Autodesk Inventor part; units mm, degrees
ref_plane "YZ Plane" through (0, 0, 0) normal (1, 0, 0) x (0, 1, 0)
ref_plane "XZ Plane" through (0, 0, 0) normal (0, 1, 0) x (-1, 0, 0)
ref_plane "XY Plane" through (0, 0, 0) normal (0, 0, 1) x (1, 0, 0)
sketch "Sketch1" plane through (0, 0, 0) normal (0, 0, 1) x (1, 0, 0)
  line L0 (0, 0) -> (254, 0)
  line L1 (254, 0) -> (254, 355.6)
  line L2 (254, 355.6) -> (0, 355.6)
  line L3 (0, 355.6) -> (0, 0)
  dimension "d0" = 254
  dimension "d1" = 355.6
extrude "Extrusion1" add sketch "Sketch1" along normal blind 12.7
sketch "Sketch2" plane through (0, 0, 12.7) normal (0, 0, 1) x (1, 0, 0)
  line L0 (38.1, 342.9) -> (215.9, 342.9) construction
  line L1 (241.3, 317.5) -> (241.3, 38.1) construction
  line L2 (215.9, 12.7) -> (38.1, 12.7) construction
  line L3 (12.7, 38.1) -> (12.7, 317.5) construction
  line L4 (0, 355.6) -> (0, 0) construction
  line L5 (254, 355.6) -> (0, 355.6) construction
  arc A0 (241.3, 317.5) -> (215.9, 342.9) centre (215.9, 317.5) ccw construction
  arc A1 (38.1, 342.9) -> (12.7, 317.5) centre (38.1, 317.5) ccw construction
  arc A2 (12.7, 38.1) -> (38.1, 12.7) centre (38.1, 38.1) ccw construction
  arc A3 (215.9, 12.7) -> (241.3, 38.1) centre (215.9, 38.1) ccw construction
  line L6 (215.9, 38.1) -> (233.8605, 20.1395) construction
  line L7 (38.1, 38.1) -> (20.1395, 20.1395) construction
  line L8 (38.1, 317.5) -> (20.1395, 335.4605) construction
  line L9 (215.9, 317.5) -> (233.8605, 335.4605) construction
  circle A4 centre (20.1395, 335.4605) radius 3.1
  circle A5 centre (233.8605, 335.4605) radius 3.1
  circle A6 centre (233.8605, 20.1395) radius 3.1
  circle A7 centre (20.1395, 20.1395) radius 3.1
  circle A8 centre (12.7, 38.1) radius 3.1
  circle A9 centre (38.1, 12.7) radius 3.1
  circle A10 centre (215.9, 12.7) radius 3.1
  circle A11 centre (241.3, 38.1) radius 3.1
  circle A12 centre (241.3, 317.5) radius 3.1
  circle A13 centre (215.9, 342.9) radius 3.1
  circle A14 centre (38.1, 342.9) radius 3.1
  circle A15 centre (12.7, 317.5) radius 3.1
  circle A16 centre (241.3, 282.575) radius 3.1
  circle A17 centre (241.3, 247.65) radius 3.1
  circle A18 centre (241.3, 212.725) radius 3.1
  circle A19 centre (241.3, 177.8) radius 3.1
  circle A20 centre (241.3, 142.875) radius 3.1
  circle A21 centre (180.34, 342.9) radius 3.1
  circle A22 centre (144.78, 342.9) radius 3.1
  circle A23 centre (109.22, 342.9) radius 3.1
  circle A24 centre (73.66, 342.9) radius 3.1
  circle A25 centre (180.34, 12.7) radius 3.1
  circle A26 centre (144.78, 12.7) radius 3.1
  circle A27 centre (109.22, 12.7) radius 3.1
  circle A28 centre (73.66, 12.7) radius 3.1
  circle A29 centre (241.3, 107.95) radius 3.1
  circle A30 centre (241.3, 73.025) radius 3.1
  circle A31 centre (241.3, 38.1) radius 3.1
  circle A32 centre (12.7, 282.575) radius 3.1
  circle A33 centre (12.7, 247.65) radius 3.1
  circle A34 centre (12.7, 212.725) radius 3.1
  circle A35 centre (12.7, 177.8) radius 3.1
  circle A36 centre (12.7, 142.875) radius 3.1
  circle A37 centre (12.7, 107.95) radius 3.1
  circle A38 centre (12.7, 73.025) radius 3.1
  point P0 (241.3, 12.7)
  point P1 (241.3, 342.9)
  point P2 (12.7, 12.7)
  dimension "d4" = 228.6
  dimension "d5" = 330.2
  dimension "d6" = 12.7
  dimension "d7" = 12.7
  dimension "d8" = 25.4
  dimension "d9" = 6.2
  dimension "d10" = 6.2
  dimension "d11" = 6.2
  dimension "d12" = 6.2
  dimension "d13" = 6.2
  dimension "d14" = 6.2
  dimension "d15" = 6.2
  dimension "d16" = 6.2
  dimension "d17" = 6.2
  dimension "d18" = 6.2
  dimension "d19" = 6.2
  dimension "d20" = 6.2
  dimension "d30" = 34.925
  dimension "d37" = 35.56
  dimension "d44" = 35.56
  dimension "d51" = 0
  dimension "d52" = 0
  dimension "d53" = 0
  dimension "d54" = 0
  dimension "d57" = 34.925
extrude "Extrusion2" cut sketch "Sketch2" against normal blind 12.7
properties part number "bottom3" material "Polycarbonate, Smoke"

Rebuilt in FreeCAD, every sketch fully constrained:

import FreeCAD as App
import Part
import Sketcher
Q = App.Units.Quantity


def add_polygon(sketch, points):
    """Adds a closed chain of lines whose ends are joined by coincident constraints."""
    first, n = sketch.GeometryCount, len(points)
    for a, b in zip(points, points[1:] + points[:1]):
        sketch.addGeometry(Part.LineSegment(App.Vector(*a, 0), App.Vector(*b, 0)), False)
    for i in range(n):
        sketch.addConstraint(Sketcher.Constraint("Coincident", first + i, 2, first + (i + 1) % n, 1))

doc = App.newDocument("Part")
body = doc.addObject("PartDesign::Body", "Body")

sketch1 = body.newObject("Sketcher::SketchObject", "Sketch")
sketch1.AttachmentSupport = (doc.getObject("XY_Plane"), [""])
sketch1.MapMode = "FlatFace"
add_polygon(sketch1, [(0, 355.6), (0, 0), (254, 0), (254, 355.6)])
sketch1.addConstraint(Sketcher.Constraint("Vertical", 0))
sketch1.addConstraint(Sketcher.Constraint("Horizontal", 1))
sketch1.addConstraint(Sketcher.Constraint("Vertical", 2))
sketch1.addConstraint(Sketcher.Constraint("Horizontal", 3))
sketch1.addConstraint(Sketcher.Constraint("Coincident", 0, 2, -1, 1))
sketch1.addConstraint(Sketcher.Constraint("DistanceX", 1, 1, 1, 2, Q("10 in")))
sketch1.addConstraint(Sketcher.Constraint("DistanceY", 0, 2, 0, 1, Q("14 in")))
pad1 = body.newObject("PartDesign::Pad", "Pad")
pad1.Profile = sketch1
pad1.Length = Q("0.5 in")

sketch2 = body.newObject("Sketcher::SketchObject", "Sketch001")
sketch2.AttachmentSupport = (doc.getObject("XY_Plane"), [""])
sketch2.MapMode = "FlatFace"
sketch2.AttachmentOffset = App.Placement(App.Vector(0, 0, 0.5 * 25.4), App.Rotation())
sketch2.addGeometry(Part.Circle(App.Vector(20.1395, 335.4605, 0), App.Vector(0, 0, 1), 3.1), False)
sketch2.addGeometry(Part.Circle(App.Vector(233.8605, 335.4605, 0), App.Vector(0, 0, 1), 3.1), False)
sketch2.addGeometry(Part.Circle(App.Vector(233.8605, 20.1395, 0), App.Vector(0, 0, 1), 3.1), False)
sketch2.addGeometry(Part.Circle(App.Vector(20.1395, 20.1395, 0), App.Vector(0, 0, 1), 3.1), False)
sketch2.addGeometry(Part.Circle(App.Vector(12.7, 38.1, 0), App.Vector(0, 0, 1), 3.1), False)
sketch2.addGeometry(Part.Circle(App.Vector(38.1, 12.7, 0), App.Vector(0, 0, 1), 3.1), False)
sketch2.addGeometry(Part.Circle(App.Vector(215.9, 12.7, 0), App.Vector(0, 0, 1), 3.1), False)
sketch2.addGeometry(Part.Circle(App.Vector(241.3, 38.1, 0), App.Vector(0, 0, 1), 3.1), False)
sketch2.addGeometry(Part.Circle(App.Vector(241.3, 317.5, 0), App.Vector(0, 0, 1), 3.1), False)
sketch2.addGeometry(Part.Circle(App.Vector(215.9, 342.9, 0), App.Vector(0, 0, 1), 3.1), False)
sketch2.addGeometry(Part.Circle(App.Vector(38.1, 342.9, 0), App.Vector(0, 0, 1), 3.1), False)
sketch2.addGeometry(Part.Circle(App.Vector(12.7, 317.5, 0), App.Vector(0, 0, 1), 3.1), False)
sketch2.addGeometry(Part.Circle(App.Vector(241.3, 282.575, 0), App.Vector(0, 0, 1), 3.1), False)
sketch2.addGeometry(Part.Circle(App.Vector(241.3, 247.65, 0), App.Vector(0, 0, 1), 3.1), False)
sketch2.addGeometry(Part.Circle(App.Vector(241.3, 212.725, 0), App.Vector(0, 0, 1), 3.1), False)
sketch2.addGeometry(Part.Circle(App.Vector(241.3, 177.8, 0), App.Vector(0, 0, 1), 3.1), False)
sketch2.addGeometry(Part.Circle(App.Vector(241.3, 142.875, 0), App.Vector(0, 0, 1), 3.1), False)
sketch2.addGeometry(Part.Circle(App.Vector(180.34, 342.9, 0), App.Vector(0, 0, 1), 3.1), False)
sketch2.addGeometry(Part.Circle(App.Vector(144.78, 342.9, 0), App.Vector(0, 0, 1), 3.1), False)
sketch2.addGeometry(Part.Circle(App.Vector(109.22, 342.9, 0), App.Vector(0, 0, 1), 3.1), False)
sketch2.addGeometry(Part.Circle(App.Vector(73.66, 342.9, 0), App.Vector(0, 0, 1), 3.1), False)
sketch2.addGeometry(Part.Circle(App.Vector(180.34, 12.7, 0), App.Vector(0, 0, 1), 3.1), False)
sketch2.addGeometry(Part.Circle(App.Vector(144.78, 12.7, 0), App.Vector(0, 0, 1), 3.1), False)
sketch2.addGeometry(Part.Circle(App.Vector(109.22, 12.7, 0), App.Vector(0, 0, 1), 3.1), False)
sketch2.addGeometry(Part.Circle(App.Vector(73.66, 12.7, 0), App.Vector(0, 0, 1), 3.1), False)
sketch2.addGeometry(Part.Circle(App.Vector(241.3, 107.95, 0), App.Vector(0, 0, 1), 3.1), False)
sketch2.addGeometry(Part.Circle(App.Vector(241.3, 73.025, 0), App.Vector(0, 0, 1), 3.1), False)
sketch2.addGeometry(Part.Circle(App.Vector(12.7, 282.575, 0), App.Vector(0, 0, 1), 3.1), False)
sketch2.addGeometry(Part.Circle(App.Vector(12.7, 247.65, 0), App.Vector(0, 0, 1), 3.1), False)
sketch2.addGeometry(Part.Circle(App.Vector(12.7, 212.725, 0), App.Vector(0, 0, 1), 3.1), False)
sketch2.addGeometry(Part.Circle(App.Vector(12.7, 177.8, 0), App.Vector(0, 0, 1), 3.1), False)
sketch2.addGeometry(Part.Circle(App.Vector(12.7, 142.875, 0), App.Vector(0, 0, 1), 3.1), False)
sketch2.addGeometry(Part.Circle(App.Vector(12.7, 107.95, 0), App.Vector(0, 0, 1), 3.1), False)
sketch2.addGeometry(Part.Circle(App.Vector(12.7, 73.025, 0), App.Vector(0, 0, 1), 3.1), False)
sketch2.addConstraint(Sketcher.Constraint("Equal", 0, 1))
sketch2.addConstraint(Sketcher.Constraint("Equal", 1, 2))
sketch2.addConstraint(Sketcher.Constraint("Equal", 2, 3))
sketch2.addConstraint(Sketcher.Constraint("Equal", 3, 4))
sketch2.addConstraint(Sketcher.Constraint("Equal", 4, 5))
sketch2.addConstraint(Sketcher.Constraint("Equal", 5, 6))
sketch2.addConstraint(Sketcher.Constraint("Equal", 6, 7))
sketch2.addConstraint(Sketcher.Constraint("Equal", 7, 8))
sketch2.addConstraint(Sketcher.Constraint("Equal", 8, 9))
sketch2.addConstraint(Sketcher.Constraint("Equal", 9, 10))
sketch2.addConstraint(Sketcher.Constraint("Equal", 10, 11))
sketch2.addConstraint(Sketcher.Constraint("Equal", 11, 12))
sketch2.addConstraint(Sketcher.Constraint("Equal", 12, 13))
sketch2.addConstraint(Sketcher.Constraint("Equal", 13, 14))
sketch2.addConstraint(Sketcher.Constraint("Equal", 14, 15))
sketch2.addConstraint(Sketcher.Constraint("Equal", 15, 16))
sketch2.addConstraint(Sketcher.Constraint("Equal", 16, 17))
sketch2.addConstraint(Sketcher.Constraint("Equal", 17, 18))
sketch2.addConstraint(Sketcher.Constraint("Equal", 18, 19))
sketch2.addConstraint(Sketcher.Constraint("Equal", 19, 20))
sketch2.addConstraint(Sketcher.Constraint("Equal", 20, 21))
sketch2.addConstraint(Sketcher.Constraint("Equal", 21, 22))
sketch2.addConstraint(Sketcher.Constraint("Equal", 22, 23))
sketch2.addConstraint(Sketcher.Constraint("Equal", 23, 24))
sketch2.addConstraint(Sketcher.Constraint("Equal", 24, 25))
sketch2.addConstraint(Sketcher.Constraint("Equal", 25, 26))
sketch2.addConstraint(Sketcher.Constraint("Equal", 26, 27))
sketch2.addConstraint(Sketcher.Constraint("Equal", 27, 28))
sketch2.addConstraint(Sketcher.Constraint("Equal", 28, 29))
sketch2.addConstraint(Sketcher.Constraint("Equal", 29, 30))
sketch2.addConstraint(Sketcher.Constraint("Equal", 30, 31))
sketch2.addConstraint(Sketcher.Constraint("Equal", 31, 32))
sketch2.addConstraint(Sketcher.Constraint("Equal", 32, 33))
sketch2.addConstraint(Sketcher.Constraint("Horizontal", 0, 3, 1, 3))
sketch2.addConstraint(Sketcher.Constraint("Horizontal", 2, 3, 3, 3))
sketch2.addConstraint(Sketcher.Constraint("Horizontal", 5, 3, 6, 3))
sketch2.addConstraint(Sketcher.Constraint("Horizontal", 4, 3, 7, 3))
sketch2.addConstraint(Sketcher.Constraint("Horizontal", 9, 3, 10, 3))
sketch2.addConstraint(Sketcher.Constraint("Horizontal", 8, 3, 11, 3))
sketch2.addConstraint(Sketcher.Constraint("Horizontal", 10, 3, 17, 3))
sketch2.addConstraint(Sketcher.Constraint("Horizontal", 17, 3, 18, 3))
sketch2.addConstraint(Sketcher.Constraint("Horizontal", 18, 3, 19, 3))
sketch2.addConstraint(Sketcher.Constraint("Horizontal", 19, 3, 20, 3))
sketch2.addConstraint(Sketcher.Constraint("Horizontal", 6, 3, 21, 3))
sketch2.addConstraint(Sketcher.Constraint("Horizontal", 21, 3, 22, 3))
sketch2.addConstraint(Sketcher.Constraint("Horizontal", 22, 3, 23, 3))
sketch2.addConstraint(Sketcher.Constraint("Horizontal", 23, 3, 24, 3))
sketch2.addConstraint(Sketcher.Constraint("Horizontal", 12, 3, 27, 3))
sketch2.addConstraint(Sketcher.Constraint("Horizontal", 13, 3, 28, 3))
sketch2.addConstraint(Sketcher.Constraint("Horizontal", 14, 3, 29, 3))
sketch2.addConstraint(Sketcher.Constraint("Horizontal", 15, 3, 30, 3))
sketch2.addConstraint(Sketcher.Constraint("Horizontal", 16, 3, 31, 3))
sketch2.addConstraint(Sketcher.Constraint("Horizontal", 25, 3, 32, 3))
sketch2.addConstraint(Sketcher.Constraint("Horizontal", 26, 3, 33, 3))
sketch2.addConstraint(Sketcher.Constraint("Vertical", 1, 3, 2, 3))
sketch2.addConstraint(Sketcher.Constraint("Vertical", 0, 3, 3, 3))
sketch2.addConstraint(Sketcher.Constraint("Vertical", 7, 3, 8, 3))
sketch2.addConstraint(Sketcher.Constraint("Vertical", 6, 3, 9, 3))
sketch2.addConstraint(Sketcher.Constraint("Vertical", 5, 3, 10, 3))
sketch2.addConstraint(Sketcher.Constraint("Vertical", 4, 3, 11, 3))
sketch2.addConstraint(Sketcher.Constraint("Vertical", 8, 3, 12, 3))
sketch2.addConstraint(Sketcher.Constraint("Vertical", 12, 3, 13, 3))
sketch2.addConstraint(Sketcher.Constraint("Vertical", 13, 3, 14, 3))
sketch2.addConstraint(Sketcher.Constraint("Vertical", 14, 3, 15, 3))
sketch2.addConstraint(Sketcher.Constraint("Vertical", 15, 3, 16, 3))
sketch2.addConstraint(Sketcher.Constraint("Vertical", 17, 3, 21, 3))
sketch2.addConstraint(Sketcher.Constraint("Vertical", 18, 3, 22, 3))
sketch2.addConstraint(Sketcher.Constraint("Vertical", 19, 3, 23, 3))
sketch2.addConstraint(Sketcher.Constraint("Vertical", 20, 3, 24, 3))
sketch2.addConstraint(Sketcher.Constraint("Vertical", 16, 3, 25, 3))
sketch2.addConstraint(Sketcher.Constraint("Vertical", 25, 3, 26, 3))
sketch2.addConstraint(Sketcher.Constraint("Vertical", 11, 3, 27, 3))
sketch2.addConstraint(Sketcher.Constraint("Vertical", 27, 3, 28, 3))
sketch2.addConstraint(Sketcher.Constraint("Vertical", 28, 3, 29, 3))
sketch2.addConstraint(Sketcher.Constraint("Vertical", 29, 3, 30, 3))
sketch2.addConstraint(Sketcher.Constraint("Vertical", 30, 3, 31, 3))
sketch2.addConstraint(Sketcher.Constraint("Vertical", 31, 3, 32, 3))
sketch2.addConstraint(Sketcher.Constraint("Vertical", 32, 3, 33, 3))
sketch2.addConstraint(Sketcher.Constraint("DistanceX", 4, 3, 5, 3, Q("1 in")))
sketch2.addConstraint(Sketcher.Constraint("DistanceY", 5, 3, 4, 3, Q("1 in")))
sketch2.addConstraint(Sketcher.Constraint("DistanceX", 6, 3, 7, 3, Q("1 in")))
sketch2.addConstraint(Sketcher.Constraint("DistanceX", 4, 3, 7, 3, Q("9 in")))
sketch2.addConstraint(Sketcher.Constraint("DistanceY", 8, 3, 9, 3, Q("1 in")))
sketch2.addConstraint(Sketcher.Constraint("Diameter", 0, Q("0.2441 in")))
sketch2.addConstraint(Sketcher.Constraint("DistanceX", -1, 1, 4, 3, Q("0.5 in")))
sketch2.addConstraint(Sketcher.Constraint("DistanceY", -1, 1, 5, 3, Q("0.5 in")))
sketch2.addConstraint(Sketcher.Constraint("DistanceX", 17, 3, 9, 3, Q("1.4 in")))
sketch2.addConstraint(Sketcher.Constraint("DistanceX", 18, 3, 17, 3, Q("1.4 in")))
sketch2.addConstraint(Sketcher.Constraint("DistanceX", 19, 3, 18, 3, Q("1.4 in")))
sketch2.addConstraint(Sketcher.Constraint("DistanceX", 10, 3, 20, 3, Q("1.4 in")))
sketch2.addConstraint(Sketcher.Constraint("DistanceY", -1, 1, 15, 3, Q("7 in")))
sketch2.addConstraint(Sketcher.Constraint("DistanceY", 7, 3, 8, 3, Q("11 in")))
sketch2.addConstraint(Sketcher.Constraint("DistanceY", 12, 3, 8, 3, Q("1.375 in")))
sketch2.addConstraint(Sketcher.Constraint("DistanceY", 13, 3, 12, 3, Q("1.375 in")))
sketch2.addConstraint(Sketcher.Constraint("DistanceY", 14, 3, 13, 3, Q("1.375 in")))
sketch2.addConstraint(Sketcher.Constraint("DistanceY", 16, 3, 15, 3, Q("1.375 in")))
sketch2.addConstraint(Sketcher.Constraint("DistanceY", 25, 3, 16, 3, Q("1.375 in")))
sketch2.addConstraint(Sketcher.Constraint("DistanceY", 26, 3, 25, 3, Q("1.375 in")))
sketch2.addConstraint(Sketcher.Constraint("DistanceX", -1, 1, 0, 3, Q("0.7929 in")))
sketch2.addConstraint(Sketcher.Constraint("DistanceY", -1, 1, 0, 3, Q("13.2071 in")))
sketch2.addConstraint(Sketcher.Constraint("DistanceX", -1, 1, 1, 3, Q("9.2071 in")))
sketch2.addConstraint(Sketcher.Constraint("DistanceY", -1, 1, 2, 3, Q("0.7929 in")))
pocket1 = body.newObject("PartDesign::Pocket", "Pocket")
pocket1.Profile = sketch2
pocket1.Length = Q("0.5 in")

doc.recompute()
